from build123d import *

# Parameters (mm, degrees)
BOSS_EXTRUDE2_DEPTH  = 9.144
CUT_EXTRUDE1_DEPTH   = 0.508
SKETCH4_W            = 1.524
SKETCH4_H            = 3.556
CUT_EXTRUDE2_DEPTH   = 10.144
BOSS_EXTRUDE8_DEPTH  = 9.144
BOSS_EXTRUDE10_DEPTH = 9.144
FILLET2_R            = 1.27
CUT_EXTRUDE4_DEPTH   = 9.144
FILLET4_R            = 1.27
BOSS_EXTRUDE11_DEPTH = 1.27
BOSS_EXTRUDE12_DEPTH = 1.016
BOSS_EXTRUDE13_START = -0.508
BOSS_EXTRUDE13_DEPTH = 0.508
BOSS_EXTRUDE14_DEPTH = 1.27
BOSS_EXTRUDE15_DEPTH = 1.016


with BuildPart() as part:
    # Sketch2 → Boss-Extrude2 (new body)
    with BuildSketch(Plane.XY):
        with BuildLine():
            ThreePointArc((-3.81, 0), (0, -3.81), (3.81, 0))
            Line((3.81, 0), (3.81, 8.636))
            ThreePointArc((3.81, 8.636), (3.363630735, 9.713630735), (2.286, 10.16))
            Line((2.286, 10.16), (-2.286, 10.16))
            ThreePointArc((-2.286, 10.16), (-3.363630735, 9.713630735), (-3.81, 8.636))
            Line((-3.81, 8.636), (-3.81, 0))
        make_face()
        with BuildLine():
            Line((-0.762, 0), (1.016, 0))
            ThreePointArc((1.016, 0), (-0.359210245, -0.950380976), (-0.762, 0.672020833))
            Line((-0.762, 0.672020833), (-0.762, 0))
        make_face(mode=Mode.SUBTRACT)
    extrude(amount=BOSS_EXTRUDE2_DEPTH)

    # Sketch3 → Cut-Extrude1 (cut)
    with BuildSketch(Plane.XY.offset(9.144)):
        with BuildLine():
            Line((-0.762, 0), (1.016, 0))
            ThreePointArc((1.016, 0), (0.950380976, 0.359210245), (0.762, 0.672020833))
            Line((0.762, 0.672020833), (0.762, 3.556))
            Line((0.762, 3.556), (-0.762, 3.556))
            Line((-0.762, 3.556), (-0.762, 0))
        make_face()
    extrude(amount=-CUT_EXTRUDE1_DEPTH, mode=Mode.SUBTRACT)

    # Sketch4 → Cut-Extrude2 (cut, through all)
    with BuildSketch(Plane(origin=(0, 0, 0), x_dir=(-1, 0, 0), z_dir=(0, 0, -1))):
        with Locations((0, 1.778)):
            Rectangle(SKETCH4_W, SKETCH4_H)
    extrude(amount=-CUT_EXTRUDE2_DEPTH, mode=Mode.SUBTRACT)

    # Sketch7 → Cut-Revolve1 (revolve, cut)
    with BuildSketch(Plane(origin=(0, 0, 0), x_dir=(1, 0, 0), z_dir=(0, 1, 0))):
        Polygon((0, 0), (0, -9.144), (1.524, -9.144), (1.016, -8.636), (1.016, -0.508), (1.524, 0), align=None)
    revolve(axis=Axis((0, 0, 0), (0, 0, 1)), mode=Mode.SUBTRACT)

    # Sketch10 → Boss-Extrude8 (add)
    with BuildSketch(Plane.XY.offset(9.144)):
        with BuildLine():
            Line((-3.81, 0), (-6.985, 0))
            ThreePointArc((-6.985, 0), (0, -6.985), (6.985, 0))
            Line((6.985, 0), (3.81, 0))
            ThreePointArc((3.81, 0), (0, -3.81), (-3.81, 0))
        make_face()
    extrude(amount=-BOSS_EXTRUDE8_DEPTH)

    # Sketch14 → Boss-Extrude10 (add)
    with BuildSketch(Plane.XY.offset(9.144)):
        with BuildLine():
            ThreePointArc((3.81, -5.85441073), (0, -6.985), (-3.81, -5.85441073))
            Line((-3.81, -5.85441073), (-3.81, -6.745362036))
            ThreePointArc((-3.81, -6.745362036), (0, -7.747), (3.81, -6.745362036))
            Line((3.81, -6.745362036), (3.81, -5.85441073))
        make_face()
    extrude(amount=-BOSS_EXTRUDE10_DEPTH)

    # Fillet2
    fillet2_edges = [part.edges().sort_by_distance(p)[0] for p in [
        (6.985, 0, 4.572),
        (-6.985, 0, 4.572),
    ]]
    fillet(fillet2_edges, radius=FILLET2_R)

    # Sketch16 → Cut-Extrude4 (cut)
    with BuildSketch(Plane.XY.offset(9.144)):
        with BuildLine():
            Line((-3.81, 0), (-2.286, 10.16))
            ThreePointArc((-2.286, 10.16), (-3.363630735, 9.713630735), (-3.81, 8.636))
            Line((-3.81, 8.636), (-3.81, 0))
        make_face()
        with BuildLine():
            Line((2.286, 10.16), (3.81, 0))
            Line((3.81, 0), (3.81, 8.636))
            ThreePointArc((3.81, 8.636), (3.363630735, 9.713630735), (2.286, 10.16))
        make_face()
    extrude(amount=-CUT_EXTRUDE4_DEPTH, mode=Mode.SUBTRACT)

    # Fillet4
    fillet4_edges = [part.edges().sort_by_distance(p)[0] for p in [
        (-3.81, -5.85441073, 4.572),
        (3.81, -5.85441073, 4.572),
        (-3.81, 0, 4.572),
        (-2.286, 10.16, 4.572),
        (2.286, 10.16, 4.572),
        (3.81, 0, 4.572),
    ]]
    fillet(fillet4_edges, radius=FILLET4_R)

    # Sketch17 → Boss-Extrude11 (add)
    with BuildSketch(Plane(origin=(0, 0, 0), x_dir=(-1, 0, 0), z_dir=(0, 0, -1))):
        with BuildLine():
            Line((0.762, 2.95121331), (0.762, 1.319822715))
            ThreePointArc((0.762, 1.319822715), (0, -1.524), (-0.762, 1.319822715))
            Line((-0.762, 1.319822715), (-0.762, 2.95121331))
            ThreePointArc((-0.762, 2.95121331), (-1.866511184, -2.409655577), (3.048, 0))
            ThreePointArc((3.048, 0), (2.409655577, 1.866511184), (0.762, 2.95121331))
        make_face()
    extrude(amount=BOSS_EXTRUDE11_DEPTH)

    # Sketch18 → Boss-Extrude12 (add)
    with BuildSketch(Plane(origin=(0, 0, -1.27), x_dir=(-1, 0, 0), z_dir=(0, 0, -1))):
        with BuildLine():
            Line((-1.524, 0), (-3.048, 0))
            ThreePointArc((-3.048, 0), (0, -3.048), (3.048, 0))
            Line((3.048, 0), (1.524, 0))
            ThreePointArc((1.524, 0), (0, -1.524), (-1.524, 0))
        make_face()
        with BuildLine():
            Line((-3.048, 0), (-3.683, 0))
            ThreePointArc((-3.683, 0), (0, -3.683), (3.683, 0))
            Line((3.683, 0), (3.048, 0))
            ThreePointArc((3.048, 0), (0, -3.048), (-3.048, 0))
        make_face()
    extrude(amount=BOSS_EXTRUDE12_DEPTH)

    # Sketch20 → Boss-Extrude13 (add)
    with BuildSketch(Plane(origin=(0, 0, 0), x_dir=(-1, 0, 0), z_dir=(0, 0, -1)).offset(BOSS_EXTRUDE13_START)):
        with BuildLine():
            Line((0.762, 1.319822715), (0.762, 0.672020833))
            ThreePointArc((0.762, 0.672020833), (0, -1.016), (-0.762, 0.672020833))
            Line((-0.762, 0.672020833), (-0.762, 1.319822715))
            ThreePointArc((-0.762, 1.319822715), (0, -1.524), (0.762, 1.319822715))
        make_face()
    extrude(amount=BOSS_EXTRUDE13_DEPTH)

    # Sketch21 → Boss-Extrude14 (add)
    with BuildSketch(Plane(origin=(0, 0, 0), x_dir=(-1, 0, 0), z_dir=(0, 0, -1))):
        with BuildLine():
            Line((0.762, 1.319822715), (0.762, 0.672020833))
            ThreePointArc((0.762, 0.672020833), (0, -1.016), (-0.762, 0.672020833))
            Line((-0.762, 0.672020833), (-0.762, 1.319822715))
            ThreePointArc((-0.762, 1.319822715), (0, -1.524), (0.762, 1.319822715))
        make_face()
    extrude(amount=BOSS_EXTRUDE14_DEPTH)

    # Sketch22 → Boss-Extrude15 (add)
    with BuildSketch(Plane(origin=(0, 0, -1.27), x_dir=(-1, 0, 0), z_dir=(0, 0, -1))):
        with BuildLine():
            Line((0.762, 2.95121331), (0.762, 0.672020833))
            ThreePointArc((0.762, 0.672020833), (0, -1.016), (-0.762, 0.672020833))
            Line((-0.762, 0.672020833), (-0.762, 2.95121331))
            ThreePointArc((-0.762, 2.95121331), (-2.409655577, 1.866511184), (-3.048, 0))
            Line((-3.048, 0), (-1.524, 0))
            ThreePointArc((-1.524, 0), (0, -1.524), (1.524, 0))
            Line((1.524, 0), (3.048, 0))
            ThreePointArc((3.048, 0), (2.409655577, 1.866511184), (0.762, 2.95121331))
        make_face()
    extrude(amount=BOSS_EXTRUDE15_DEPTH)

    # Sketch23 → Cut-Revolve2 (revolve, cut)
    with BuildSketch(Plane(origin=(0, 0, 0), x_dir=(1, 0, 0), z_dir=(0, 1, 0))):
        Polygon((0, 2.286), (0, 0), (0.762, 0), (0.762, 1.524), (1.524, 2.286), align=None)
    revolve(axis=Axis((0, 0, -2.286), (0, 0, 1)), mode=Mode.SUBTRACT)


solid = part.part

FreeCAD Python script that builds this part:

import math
import FreeCAD as App
import Part
import Sketcher

V = App.Vector
Q = App.Units.Quantity


def edges_at(feature, points):
    """Names of the edges that pass closest to the given points."""
    edges = feature.Shape.Edges
    near = lambda p: min(range(len(edges)), key=lambda i: edges[i].distToShape(Part.Vertex(*p))[0])
    return sorted({f"Edge{near(p) + 1}" for p in points})

doc = App.newDocument("Part")
body = doc.addObject("PartDesign::Body", "Body")

# Sketch on XY plane
sketch1 = body.newObject("Sketcher::SketchObject", "Sketch")
sketch1.AttachmentSupport = (doc.getObject("XY_Plane"), [""])
sketch1.MapMode = "FlatFace"
sketch1.addGeometry(Part.ArcOfCircle(Part.Circle(V(0, 0, 0), V(0, 0, 1), 3.81), math.radians(180), math.radians(360)), False)
sketch1.addGeometry(Part.LineSegment(V(3.81, 0, 0), V(3.81, 8.636, 0)), False)
sketch1.addGeometry(Part.ArcOfCircle(Part.Circle(V(2.286, 8.636, 0), V(0, 0, 1), 1.524), math.radians(0), math.radians(90)), False)
sketch1.addGeometry(Part.LineSegment(V(2.286, 10.16, 0), V(-2.286, 10.16, 0)), False)
sketch1.addGeometry(Part.ArcOfCircle(Part.Circle(V(-2.286, 8.636, 0), V(0, 0, 1), 1.524), math.radians(90), math.radians(180)), False)
sketch1.addGeometry(Part.LineSegment(V(-3.81, 8.636, 0), V(-3.81, 0, 0)), False)
sketch1.addGeometry(Part.LineSegment(V(-0.762, 0.672021, 0), V(-0.762, 0, 0)), False)
sketch1.addGeometry(Part.LineSegment(V(-0.762, 0, 0), V(1.016, 0, 0)), False)
sketch1.addGeometry(Part.ArcOfCircle(Part.Circle(V(0, 0, 0), V(0, 0, 1), 1.016), math.radians(138.590378), math.radians(360)), False)
sketch1.addConstraint(Sketcher.Constraint("Tangent", 0, 2, 1, 1))
sketch1.addConstraint(Sketcher.Constraint("Tangent", 1, 2, 2, 1))
sketch1.addConstraint(Sketcher.Constraint("Tangent", 2, 2, 3, 1))
sketch1.addConstraint(Sketcher.Constraint("Tangent", 3, 2, 4, 1))
sketch1.addConstraint(Sketcher.Constraint("Tangent", 4, 2, 5, 1))
sketch1.addConstraint(Sketcher.Constraint("Tangent", 5, 2, 0, 1))
sketch1.addConstraint(Sketcher.Constraint("Coincident", 6, 2, 7, 1))
sketch1.addConstraint(Sketcher.Constraint("Coincident", 7, 2, 8, 2))
sketch1.addConstraint(Sketcher.Constraint("Coincident", 8, 1, 6, 1))
sketch1.addConstraint(Sketcher.Constraint("Vertical", 1))
sketch1.addConstraint(Sketcher.Constraint("Horizontal", 3))
sketch1.addConstraint(Sketcher.Constraint("Vertical", 5))
sketch1.addConstraint(Sketcher.Constraint("Vertical", 6))
sketch1.addConstraint(Sketcher.Constraint("Horizontal", 7))
sketch1.addConstraint(Sketcher.Constraint("Coincident", 0, 3, -1, 1))
sketch1.addConstraint(Sketcher.Constraint("Coincident", 8, 3, -1, 1))
sketch1.addConstraint(Sketcher.Constraint("Equal", 2, 4))
sketch1.addConstraint(Sketcher.Constraint("PointOnObject", 6, 2, -1))
sketch1.addConstraint(Sketcher.Constraint("Radius", 0, Q("0.15 in")))
sketch1.addConstraint(Sketcher.Constraint("Radius", 2, Q("0.06 in")))
sketch1.addConstraint(Sketcher.Constraint("Radius", 8, Q("0.04 in")))
sketch1.addConstraint(Sketcher.Constraint("DistanceX", 7, 1, 7, 2, Q("0.07 in")))
sketch1.addConstraint(Sketcher.Constraint("DistanceY", 1, 1, 1, 2, Q("0.34 in")))
pad1 = body.newObject("PartDesign::Pad", "Pad")
pad1.Profile = sketch1
pad1.Length = Q("0.36 in")

# Sketch on XY plane
sketch2 = body.newObject("Sketcher::SketchObject", "Sketch001")
sketch2.AttachmentSupport = (doc.getObject("XY_Plane"), [""])
sketch2.MapMode = "FlatFace"
sketch2.AttachmentOffset = App.Placement(V(0, 0, 0.36 * 25.4), App.Rotation())
sketch2.addGeometry(Part.LineSegment(V(-0.762, 0, 0), V(1.016, 0, 0)), False)
sketch2.addGeometry(Part.ArcOfCircle(Part.Circle(V(0, 0, 0), V(0, 0, 1), 1.016), math.radians(0), math.radians(41.409622)), False)
sketch2.addGeometry(Part.LineSegment(V(0.762, 0.672021, 0), V(0.762, 3.556, 0)), False)
sketch2.addGeometry(Part.LineSegment(V(0.762, 3.556, 0), V(-0.762, 3.556, 0)), False)
sketch2.addGeometry(Part.LineSegment(V(-0.762, 3.556, 0), V(-0.762, 0, 0)), False)
sketch2.addConstraint(Sketcher.Constraint("Coincident", 0, 2, 1, 1))
sketch2.addConstraint(Sketcher.Constraint("Coincident", 1, 2, 2, 1))
sketch2.addConstraint(Sketcher.Constraint("Coincident", 2, 2, 3, 1))
sketch2.addConstraint(Sketcher.Constraint("Coincident", 3, 2, 4, 1))
sketch2.addConstraint(Sketcher.Constraint("Coincident", 4, 2, 0, 1))
sketch2.addConstraint(Sketcher.Constraint("Horizontal", 0))
sketch2.addConstraint(Sketcher.Constraint("Vertical", 2))
sketch2.addConstraint(Sketcher.Constraint("Horizontal", 3))
sketch2.addConstraint(Sketcher.Constraint("Vertical", 4))
sketch2.addConstraint(Sketcher.Constraint("Coincident", 1, 3, -1, 1))
sketch2.addConstraint(Sketcher.Constraint("PointOnObject", 0, 2, -1))
sketch2.addConstraint(Sketcher.Constraint("Radius", 1, Q("0.04 in")))
sketch2.addConstraint(Sketcher.Constraint("DistanceX", 0, 1, 0, 2, Q("0.07 in")))
sketch2.addConstraint(Sketcher.Constraint("DistanceX", 3, 2, 3, 1, Q("0.06 in")))
sketch2.addConstraint(Sketcher.Constraint("DistanceY", 4, 2, 4, 1, Q("0.14 in")))
pocket1 = body.newObject("PartDesign::Pocket", "Pocket")
pocket1.Profile = sketch2
pocket1.Length = Q("0.02 in")

# Sketch on XY plane
sketch3 = body.newObject("Sketcher::SketchObject", "Sketch002")
sketch3.AttachmentSupport = (doc.getObject("XY_Plane"), [""])
sketch3.MapMode = "FlatFace"
sketch3.addGeometry(Part.LineSegment(V(0.762, 3.556, 0), V(0.762, 0, 0)), False)
sketch3.addGeometry(Part.LineSegment(V(0.762, 0, 0), V(-0.762, 0, 0)), False)
sketch3.addGeometry(Part.LineSegment(V(-0.762, 0, 0), V(-0.762, 3.556, 0)), False)
sketch3.addGeometry(Part.LineSegment(V(-0.762, 3.556, 0), V(0.762, 3.556, 0)), False)
sketch3.addConstraint(Sketcher.Constraint("Coincident", 0, 2, 1, 1))
sketch3.addConstraint(Sketcher.Constraint("Coincident", 1, 2, 2, 1))
sketch3.addConstraint(Sketcher.Constraint("Coincident", 2, 2, 3, 1))
sketch3.addConstraint(Sketcher.Constraint("Coincident", 3, 2, 0, 1))
sketch3.addConstraint(Sketcher.Constraint("Vertical", 0))
sketch3.addConstraint(Sketcher.Constraint("Horizontal", 1))
sketch3.addConstraint(Sketcher.Constraint("Vertical", 2))
sketch3.addConstraint(Sketcher.Constraint("Horizontal", 3))
sketch3.addConstraint(Sketcher.Constraint("Symmetric", 0, 2, 1, 2, -1, 1))
sketch3.addConstraint(Sketcher.Constraint("DistanceX", 1, 2, 1, 1, Q("0.06 in")))
sketch3.addConstraint(Sketcher.Constraint("DistanceY", 0, 2, 0, 1, Q("0.14 in")))
pocket2 = body.newObject("PartDesign::Pocket", "Pocket001")
pocket2.Profile = sketch3
pocket2.Type = "ThroughAll"
pocket2.Reversed = True

# Sketch on XZ plane
sketch4 = body.newObject("Sketcher::SketchObject", "Sketch003")
sketch4.AttachmentSupport = (doc.getObject("XZ_Plane"), [""])
sketch4.MapMode = "FlatFace"
sketch4.addGeometry(Part.LineSegment(V(0, 0, 0), V(0, 9.144, 0)), False)
sketch4.addGeometry(Part.LineSegment(V(0, 9.144, 0), V(1.524, 9.144, 0)), False)
sketch4.addGeometry(Part.LineSegment(V(1.524, 9.144, 0), V(1.016, 8.636, 0)), False)
sketch4.addGeometry(Part.LineSegment(V(1.016, 8.636, 0), V(1.016, 0.508, 0)), False)
sketch4.addGeometry(Part.LineSegment(V(1.016, 0.508, 0), V(1.524, 0, 0)), False)
sketch4.addGeometry(Part.LineSegment(V(1.524, 0, 0), V(0, 0, 0)), False)
sketch4.addConstraint(Sketcher.Constraint("Coincident", 0, 2, 1, 1))
sketch4.addConstraint(Sketcher.Constraint("Coincident", 1, 2, 2, 1))
sketch4.addConstraint(Sketcher.Constraint("Coincident", 2, 2, 3, 1))
sketch4.addConstraint(Sketcher.Constraint("Coincident", 3, 2, 4, 1))
sketch4.addConstraint(Sketcher.Constraint("Coincident", 4, 2, 5, 1))
sketch4.addConstraint(Sketcher.Constraint("Coincident", 5, 2, 0, 1))
sketch4.addConstraint(Sketcher.Constraint("Vertical", 0))
sketch4.addConstraint(Sketcher.Constraint("Horizontal", 1))
sketch4.addConstraint(Sketcher.Constraint("Vertical", 3))
sketch4.addConstraint(Sketcher.Constraint("Horizontal", 5))
sketch4.addConstraint(Sketcher.Constraint("Coincident", 5, 2, -1, 1))
sketch4.addConstraint(Sketcher.Constraint("Perpendicular", 2, 4))
sketch4.addConstraint(Sketcher.Constraint("Vertical", 1, 2, 4, 2))
sketch4.addConstraint(Sketcher.Constraint("Equal", 2, 4))
sketch4.addConstraint(Sketcher.Constraint("DistanceX", 1, 1, 1, 2, Q("0.06 in")))
sketch4.addConstraint(Sketcher.Constraint("DistanceY", 0, 1, 0, 2, Q("0.36 in")))
sketch4.addConstraint(Sketcher.Constraint("DistanceY", 3, 2, 3, 1, Q("0.32 in")))
groove = body.newObject("PartDesign::Groove", "Groove")
groove.Profile = sketch4
groove.ReferenceAxis = (sketch4, ["V_Axis"])
groove.Angle = 360

# Sketch on XY plane
sketch5 = body.newObject("Sketcher::SketchObject", "Sketch004")
sketch5.AttachmentSupport = (doc.getObject("XY_Plane"), [""])
sketch5.MapMode = "FlatFace"
sketch5.AttachmentOffset = App.Placement(V(0, 0, 0.36 * 25.4), App.Rotation())
sketch5.addGeometry(Part.LineSegment(V(-3.81, 0, 0), V(-6.985, 0, 0)), False)
sketch5.addGeometry(Part.ArcOfCircle(Part.Circle(V(0, 0, 0), V(0, 0, 1), 6.985), math.radians(180), math.radians(360)), False)
sketch5.addGeometry(Part.LineSegment(V(6.985, 0, 0), V(3.81, 0, 0)), False)
sketch5.addGeometry(Part.ArcOfCircle(Part.Circle(V(0, 0, 0), V(0, 0, 1), 3.81), math.radians(180), math.radians(360)), False)
sketch5.addConstraint(Sketcher.Constraint("Coincident", 0, 2, 1, 1))
sketch5.addConstraint(Sketcher.Constraint("Coincident", 1, 2, 2, 1))
sketch5.addConstraint(Sketcher.Constraint("Coincident", 2, 2, 3, 2))
sketch5.addConstraint(Sketcher.Constraint("Coincident", 3, 1, 0, 1))
sketch5.addConstraint(Sketcher.Constraint("Horizontal", 0))
sketch5.addConstraint(Sketcher.Constraint("Horizontal", 2))
sketch5.addConstraint(Sketcher.Constraint("Coincident", 1, 3, -1, 1))
sketch5.addConstraint(Sketcher.Constraint("Coincident", 3, 3, -1, 1))
sketch5.addConstraint(Sketcher.Constraint("PointOnObject", 0, 2, -1))
sketch5.addConstraint(Sketcher.Constraint("PointOnObject", 1, 2, -1))
sketch5.addConstraint(Sketcher.Constraint("Radius", 3, Q("0.15 in")))
sketch5.addConstraint(Sketcher.Constraint("Radius", 1, Q("0.275 in")))
pad2 = body.newObject("PartDesign::Pad", "Pad001")
pad2.Profile = sketch5
pad2.Length = Q("0.36 in")
pad2.Reversed = True

# Sketch on XY plane
sketch6 = body.newObject("Sketcher::SketchObject", "Sketch005")
sketch6.AttachmentSupport = (doc.getObject("XY_Plane"), [""])
sketch6.MapMode = "FlatFace"
sketch6.AttachmentOffset = App.Placement(V(0, 0, 0.36 * 25.4), App.Rotation())
sketch6.addGeometry(Part.ArcOfCircle(Part.Circle(V(0, 0, 0), V(0, 0, 1), 6.985), math.radians(-123.055731), math.radians(-56.944269)), False)
sketch6.addGeometry(Part.LineSegment(V(-3.81, -5.854411, 0), V(-3.81, -6.745362, 0)), False)
sketch6.addGeometry(Part.ArcOfCircle(Part.Circle(V(0, 0, 0), V(0, 0, 1), 7.747), math.radians(-119.459175), math.radians(-60.540825)), False)
sketch6.addGeometry(Part.LineSegment(V(3.81, -6.745362, 0), V(3.81, -5.854411, 0)), False)
sketch6.addConstraint(Sketcher.Constraint("Coincident", 0, 1, 1, 1))
sketch6.addConstraint(Sketcher.Constraint("Coincident", 1, 2, 2, 1))
sketch6.addConstraint(Sketcher.Constraint("Coincident", 2, 2, 3, 1))
sketch6.addConstraint(Sketcher.Constraint("Coincident", 3, 2, 0, 2))
sketch6.addConstraint(Sketcher.Constraint("Vertical", 1))
sketch6.addConstraint(Sketcher.Constraint("Vertical", 3))
sketch6.addConstraint(Sketcher.Constraint("Coincident", 0, 3, -1, 1))
sketch6.addConstraint(Sketcher.Constraint("Coincident", 2, 3, -1, 1))
sketch6.addConstraint(Sketcher.Constraint("Horizontal", 1, 2, 2, 2))
sketch6.addConstraint(Sketcher.Constraint("Radius", 0, Q("0.275 in")))
sketch6.addConstraint(Sketcher.Constraint("Radius", 2, Q("0.305 in")))
sketch6.addConstraint(Sketcher.Constraint("DistanceX", 1, 2, 2, 2, Q("0.3 in")))
pad3 = body.newObject("PartDesign::Pad", "Pad002")
pad3.Profile = sketch6
pad3.Length = Q("0.36 in")
pad3.Reversed = True
doc.recompute()

fillet = body.newObject("PartDesign::Fillet", "Fillet")
fillet.Base = (pad3, edges_at(pad3, [(6.985, 0, 4.572), (-6.985, 0, 4.572)]))
fillet.Radius = Q("0.05 in")

# Sketch on XY plane
sketch7 = body.newObject("Sketcher::SketchObject", "Sketch006")
sketch7.AttachmentSupport = (doc.getObject("XY_Plane"), [""])
sketch7.MapMode = "FlatFace"
sketch7.AttachmentOffset = App.Placement(V(0, 0, 0.36 * 25.4), App.Rotation())
sketch7.addGeometry(Part.LineSegment(V(-3.81, 0, 0), V(-2.286, 10.16, 0)), False)
sketch7.addGeometry(Part.ArcOfCircle(Part.Circle(V(-2.286, 8.636, 0), V(0, 0, 1), 1.524), math.radians(90), math.radians(180)), False)
sketch7.addGeometry(Part.LineSegment(V(-3.81, 8.636, 0), V(-3.81, 0, 0)), False)
sketch7.addGeometry(Part.LineSegment(V(2.286, 10.16, 0), V(3.81, 0, 0)), False)
sketch7.addGeometry(Part.LineSegment(V(3.81, 0, 0), V(3.81, 8.636, 0)), False)
sketch7.addGeometry(Part.ArcOfCircle(Part.Circle(V(2.286, 8.636, 0), V(0, 0, 1), 1.524), math.radians(0), math.radians(90)), False)
sketch7.addConstraint(Sketcher.Constraint("Coincident", 0, 2, 1, 1))
sketch7.addConstraint(Sketcher.Constraint("Tangent", 1, 2, 2, 1))
sketch7.addConstraint(Sketcher.Constraint("Coincident", 2, 2, 0, 1))
sketch7.addConstraint(Sketcher.Constraint("Coincident", 3, 2, 4, 1))
sketch7.addConstraint(Sketcher.Constraint("Tangent", 4, 2, 5, 1))
sketch7.addConstraint(Sketcher.Constraint("Coincident", 5, 2, 3, 1))
sketch7.addConstraint(Sketcher.Constraint("Vertical", 2))
sketch7.addConstraint(Sketcher.Constraint("Vertical", 4))
sketch7.addConstraint(Sketcher.Constraint("Equal", 1, 5))
sketch7.addConstraint(Sketcher.Constraint("Symmetric", 2, 2, 3, 2, -1, 1))
sketch7.addConstraint(Sketcher.Constraint("Symmetric", 0, 2, 5, 2, -2))
sketch7.addConstraint(Sketcher.Constraint("PointOnObject", 2, 2, -1))
sketch7.addConstraint(Sketcher.Constraint("Vertical", 1, 3, 0, 2))
sketch7.addConstraint(Sketcher.Constraint("Radius", 1, Q("0.06 in")))
sketch7.addConstraint(Sketcher.Constraint("DistanceY", 2, 2, 2, 1, Q("0.34 in")))
sketch7.addConstraint(Sketcher.Constraint("DistanceX", 2, 2, 3, 2, Q("0.3 in")))
pocket3 = body.newObject("PartDesign::Pocket", "Pocket002")
pocket3.Profile = sketch7
pocket3.Length = Q("0.36 in")
doc.recompute()

fillet2 = body.newObject("PartDesign::Fillet", "Fillet001")
fillet2.Base = (pocket3, edges_at(pocket3, [
    (-3.81, -5.854, 4.572),
    (3.81, -5.854, 4.572),
    (-3.81, 0, 4.572),
    (-2.286, 10.16, 4.572),
    (2.286, 10.16, 4.572),
    (3.81, 0, 4.572),
]))
fillet2.Radius = Q("0.05 in")

# Sketch on XY plane
sketch8 = body.newObject("Sketcher::SketchObject", "Sketch007")
sketch8.AttachmentSupport = (doc.getObject("XY_Plane"), [""])
sketch8.MapMode = "FlatFace"
sketch8.addGeometry(Part.LineSegment(V(-0.762, 2.951213, 0), V(-0.762, 1.319823, 0)), False)
sketch8.addGeometry(Part.ArcOfCircle(Part.Circle(V(0, 0, 0), V(0, 0, 1), 1.524), math.radians(120), math.radians(420)), False)
sketch8.addGeometry(Part.LineSegment(V(0.762, 1.319823, 0), V(0.762, 2.951213, 0)), False)
sketch8.addGeometry(Part.ArcOfCircle(Part.Circle(V(0, 0, 0), V(0, 0, 1), 3.048), math.radians(180), math.radians(435.522488)), False)
sketch8.addGeometry(Part.ArcOfCircle(Part.Circle(V(0, 0, 0), V(0, 0, 1), 3.048), math.radians(104.477512), math.radians(180)), False)
sketch8.addConstraint(Sketcher.Constraint("Coincident", 0, 2, 1, 1))
sketch8.addConstraint(Sketcher.Constraint("Coincident", 1, 2, 2, 1))
sketch8.addConstraint(Sketcher.Constraint("Coincident", 2, 2, 3, 2))
sketch8.addConstraint(Sketcher.Constraint("Tangent", 3, 1, 4, 2))
sketch8.addConstraint(Sketcher.Constraint("Coincident", 4, 1, 0, 1))
sketch8.addConstraint(Sketcher.Constraint("Vertical", 0))
sketch8.addConstraint(Sketcher.Constraint("Vertical", 2))
sketch8.addConstraint(Sketcher.Constraint("Coincident", 1, 3, -1, 1))
sketch8.addConstraint(Sketcher.Constraint("Coincident", 3, 3, -1, 1))
sketch8.addConstraint(Sketcher.Constraint("Equal", 3, 4))
sketch8.addConstraint(Sketcher.Constraint("PointOnObject", 3, 1, -1))
sketch8.addConstraint(Sketcher.Constraint("Horizontal", 0, 2, 1, 2))
sketch8.addConstraint(Sketcher.Constraint("Radius", 1, Q("0.06 in")))
sketch8.addConstraint(Sketcher.Constraint("Radius", 3, Q("0.12 in")))
sketch8.addConstraint(Sketcher.Constraint("DistanceX", 0, 2, -1, 1, Q("0.03 in")))
pad4 = body.newObject("PartDesign::Pad", "Pad003")
pad4.Profile = sketch8
pad4.Length = Q("0.05 in")
pad4.Reversed = True

# Sketch on XY plane
sketch9 = body.newObject("Sketcher::SketchObject", "Sketch008")
sketch9.AttachmentSupport = (doc.getObject("XY_Plane"), [""])
sketch9.MapMode = "FlatFace"
sketch9.AttachmentOffset = App.Placement(V(0, 0, -0.05 * 25.4), App.Rotation())
sketch9.addGeometry(Part.LineSegment(V(1.524, 0, 0), V(3.683, 0, 0)), False)
sketch9.addGeometry(Part.ArcOfCircle(Part.Circle(V(0, 0, 0), V(0, 0, 1), 3.683), math.radians(180), math.radians(360)), False)
sketch9.addGeometry(Part.LineSegment(V(-3.683, 0, 0), V(-1.524, 0, 0)), False)
sketch9.addGeometry(Part.ArcOfCircle(Part.Circle(V(0, 0, 0), V(0, 0, 1), 1.524), math.radians(180), math.radians(360)), False)
sketch9.addConstraint(Sketcher.Constraint("Coincident", 0, 2, 1, 2))
sketch9.addConstraint(Sketcher.Constraint("Coincident", 1, 1, 2, 1))
sketch9.addConstraint(Sketcher.Constraint("Coincident", 2, 2, 3, 1))
sketch9.addConstraint(Sketcher.Constraint("Coincident", 3, 2, 0, 1))
sketch9.addConstraint(Sketcher.Constraint("Horizontal", 0))
sketch9.addConstraint(Sketcher.Constraint("Horizontal", 2))
sketch9.addConstraint(Sketcher.Constraint("Coincident", 1, 3, -1, 1))
sketch9.addConstraint(Sketcher.Constraint("Coincident", 3, 3, -1, 1))
sketch9.addConstraint(Sketcher.Constraint("PointOnObject", 0, 2, -1))
sketch9.addConstraint(Sketcher.Constraint("PointOnObject", 1, 1, -1))
sketch9.addConstraint(Sketcher.Constraint("Radius", 3, Q("0.06 in")))
sketch9.addConstraint(Sketcher.Constraint("Radius", 1, Q("0.145 in")))
pad5 = body.newObject("PartDesign::Pad", "Pad004")
pad5.Profile = sketch9
pad5.Length = Q("0.04 in")
pad5.Reversed = True

# Sketch on XY plane
sketch10 = body.newObject("Sketcher::SketchObject", "Sketch009")
sketch10.AttachmentSupport = (doc.getObject("XY_Plane"), [""])
sketch10.MapMode = "FlatFace"
sketch10.AttachmentOffset = App.Placement(V(0, 0, 0.02 * 25.4), App.Rotation())
sketch10.addGeometry(Part.LineSegment(V(-0.762, 1.319823, 0), V(-0.762, 0.672021, 0)), False)
sketch10.addGeometry(Part.ArcOfCircle(Part.Circle(V(0, 0, 0), V(0, 0, 1), 1.016), math.radians(138.590378), math.radians(401.409622)), False)
sketch10.addGeometry(Part.LineSegment(V(0.762, 0.672021, 0), V(0.762, 1.319823, 0)), False)
sketch10.addGeometry(Part.ArcOfCircle(Part.Circle(V(0, 0, 0), V(0, 0, 1), 1.524), math.radians(120), math.radians(420)), False)
sketch10.addConstraint(Sketcher.Constraint("Coincident", 0, 2, 1, 1))
sketch10.addConstraint(Sketcher.Constraint("Coincident", 1, 2, 2, 1))
sketch10.addConstraint(Sketcher.Constraint("Coincident", 2, 2, 3, 2))
sketch10.addConstraint(Sketcher.Constraint("Coincident", 3, 1, 0, 1))
sketch10.addConstraint(Sketcher.Constraint("Vertical", 0))
sketch10.addConstraint(Sketcher.Constraint("Vertical", 2))
sketch10.addConstraint(Sketcher.Constraint("Coincident", 1, 3, -1, 1))
sketch10.addConstraint(Sketcher.Constraint("Coincident", 3, 3, -1, 1))
sketch10.addConstraint(Sketcher.Constraint("Horizontal", 0, 2, 1, 2))
sketch10.addConstraint(Sketcher.Constraint("Radius", 1, Q("0.04 in")))
sketch10.addConstraint(Sketcher.Constraint("Radius", 3, Q("0.06 in")))
sketch10.addConstraint(Sketcher.Constraint("DistanceX", 0, 2, -1, 1, Q("0.03 in")))
pad6 = body.newObject("PartDesign::Pad", "Pad005")
pad6.Profile = sketch10
pad6.Length = Q("0.02 in")
pad6.Reversed = True

# Sketch on XY plane
sketch11 = body.newObject("Sketcher::SketchObject", "Sketch010")
sketch11.AttachmentSupport = (doc.getObject("XY_Plane"), [""])
sketch11.MapMode = "FlatFace"
sketch11.addGeometry(Part.LineSegment(V(-0.762, 1.319823, 0), V(-0.762, 0.672021, 0)), False)
sketch11.addGeometry(Part.ArcOfCircle(Part.Circle(V(0, 0, 0), V(0, 0, 1), 1.016), math.radians(138.590378), math.radians(401.409622)), False)
sketch11.addGeometry(Part.LineSegment(V(0.762, 0.672021, 0), V(0.762, 1.319823, 0)), False)
sketch11.addGeometry(Part.ArcOfCircle(Part.Circle(V(0, 0, 0), V(0, 0, 1), 1.524), math.radians(120), math.radians(420)), False)
sketch11.addConstraint(Sketcher.Constraint("Coincident", 0, 2, 1, 1))
sketch11.addConstraint(Sketcher.Constraint("Coincident", 1, 2, 2, 1))
sketch11.addConstraint(Sketcher.Constraint("Coincident", 2, 2, 3, 2))
sketch11.addConstraint(Sketcher.Constraint("Coincident", 3, 1, 0, 1))
sketch11.addConstraint(Sketcher.Constraint("Vertical", 0))
sketch11.addConstraint(Sketcher.Constraint("Vertical", 2))
sketch11.addConstraint(Sketcher.Constraint("Coincident", 1, 3, -1, 1))
sketch11.addConstraint(Sketcher.Constraint("Coincident", 3, 3, -1, 1))
sketch11.addConstraint(Sketcher.Constraint("Horizontal", 0, 2, 1, 2))
sketch11.addConstraint(Sketcher.Constraint("Radius", 1, Q("0.04 in")))
sketch11.addConstraint(Sketcher.Constraint("Radius", 3, Q("0.06 in")))
sketch11.addConstraint(Sketcher.Constraint("DistanceX", 0, 2, -1, 1, Q("0.03 in")))
pad7 = body.newObject("PartDesign::Pad", "Pad006")
pad7.Profile = sketch11
pad7.Length = Q("0.05 in")
pad7.Reversed = True

# Sketch on XY plane
sketch12 = body.newObject("Sketcher::SketchObject", "Sketch011")
sketch12.AttachmentSupport = (doc.getObject("XY_Plane"), [""])
sketch12.MapMode = "FlatFace"
sketch12.AttachmentOffset = App.Placement(V(0, 0, -0.05 * 25.4), App.Rotation())
sketch12.addGeometry(Part.LineSegment(V(-0.762, 2.951213, 0), V(-0.762, 0.672021, 0)), False)
sketch12.addGeometry(Part.ArcOfCircle(Part.Circle(V(0, 0, 0), V(0, 0, 1), 1.016), math.radians(138.590378), math.radians(401.409622)), False)
sketch12.addGeometry(Part.LineSegment(V(0.762, 0.672021, 0), V(0.762, 2.951213, 0)), False)
sketch12.addGeometry(Part.ArcOfCircle(Part.Circle(V(0, 0, 0), V(0, 0, 1), 3.048), math.radians(0), math.radians(75.522488)), False)
sketch12.addGeometry(Part.LineSegment(V(3.048, 0, 0), V(1.524, 0, 0)), False)
sketch12.addGeometry(Part.ArcOfCircle(Part.Circle(V(0, 0, 0), V(0, 0, 1), 1.524), math.radians(180), math.radians(360)), False)
sketch12.addGeometry(Part.LineSegment(V(-1.524, 0, 0), V(-3.048, 0, 0)), False)
sketch12.addGeometry(Part.ArcOfCircle(Part.Circle(V(0, 0, 0), V(0, 0, 1), 3.048), math.radians(104.477512), math.radians(180)), False)
sketch12.addConstraint(Sketcher.Constraint("Coincident", 0, 2, 1, 1))
sketch12.addConstraint(Sketcher.Constraint("Coincident", 1, 2, 2, 1))
sketch12.addConstraint(Sketcher.Constraint("Coincident", 2, 2, 3, 2))
sketch12.addConstraint(Sketcher.Constraint("Coincident", 3, 1, 4, 1))
sketch12.addConstraint(Sketcher.Constraint("Coincident", 4, 2, 5, 2))
sketch12.addConstraint(Sketcher.Constraint("Coincident", 5, 1, 6, 1))
sketch12.addConstraint(Sketcher.Constraint("Coincident", 6, 2, 7, 2))
sketch12.addConstraint(Sketcher.Constraint("Coincident", 7, 1, 0, 1))
sketch12.addConstraint(Sketcher.Constraint("Vertical", 0))
sketch12.addConstraint(Sketcher.Constraint("Vertical", 2))
sketch12.addConstraint(Sketcher.Constraint("Horizontal", 4))
sketch12.addConstraint(Sketcher.Constraint("Horizontal", 6))
sketch12.addConstraint(Sketcher.Constraint("Coincident", 1, 3, -1, 1))
sketch12.addConstraint(Sketcher.Constraint("Coincident", 3, 3, -1, 1))
sketch12.addConstraint(Sketcher.Constraint("Coincident", 5, 3, -1, 1))
sketch12.addConstraint(Sketcher.Constraint("Coincident", 7, 3, -1, 1))
sketch12.addConstraint(Sketcher.Constraint("Equal", 3, 7))
sketch12.addConstraint(Sketcher.Constraint("PointOnObject", 3, 1, -1))
sketch12.addConstraint(Sketcher.Constraint("PointOnObject", 5, 1, -1))
sketch12.addConstraint(Sketcher.Constraint("Horizontal", 0, 2, 1, 2))
sketch12.addConstraint(Sketcher.Constraint("Radius", 1, Q("0.04 in")))
sketch12.addConstraint(Sketcher.Constraint("Radius", 3, Q("0.12 in")))
sketch12.addConstraint(Sketcher.Constraint("Radius", 5, Q("0.06 in")))
sketch12.addConstraint(Sketcher.Constraint("DistanceX", 0, 2, -1, 1, Q("0.03 in")))
pad8 = body.newObject("PartDesign::Pad", "Pad007")
pad8.Profile = sketch12
pad8.Length = Q("0.04 in")
pad8.Reversed = True

# Sketch on XZ plane
sketch13 = body.newObject("Sketcher::SketchObject", "Sketch012")
sketch13.AttachmentSupport = (doc.getObject("XZ_Plane"), [""])
sketch13.MapMode = "FlatFace"
sketch13.addGeometry(Part.LineSegment(V(0, -2.286, 0), V(0, 0, 0)), False)
sketch13.addGeometry(Part.LineSegment(V(0, 0, 0), V(0.762, 0, 0)), False)
sketch13.addGeometry(Part.LineSegment(V(0.762, 0, 0), V(0.762, -1.524, 0)), False)
sketch13.addGeometry(Part.LineSegment(V(0.762, -1.524, 0), V(1.524, -2.286, 0)), False)
sketch13.addGeometry(Part.LineSegment(V(1.524, -2.286, 0), V(0, -2.286, 0)), False)
sketch13.addConstraint(Sketcher.Constraint("Coincident", 0, 2, 1, 1))
sketch13.addConstraint(Sketcher.Constraint("Coincident", 1, 2, 2, 1))
sketch13.addConstraint(Sketcher.Constraint("Coincident", 2, 2, 3, 1))
sketch13.addConstraint(Sketcher.Constraint("Coincident", 3, 2, 4, 1))
sketch13.addConstraint(Sketcher.Constraint("Coincident", 4, 2, 0, 1))
sketch13.addConstraint(Sketcher.Constraint("Vertical", 0))
sketch13.addConstraint(Sketcher.Constraint("Horizontal", 1))
sketch13.addConstraint(Sketcher.Constraint("Vertical", 2))
sketch13.addConstraint(Sketcher.Constraint("Horizontal", 4))
sketch13.addConstraint(Sketcher.Constraint("Coincident", 0, 2, -1, 1))
sketch13.addConstraint(Sketcher.Constraint("Equal", 4, 2))
sketch13.addConstraint(Sketcher.Constraint("Angle", 3, Q("-45 deg")))
sketch13.addConstraint(Sketcher.Constraint("DistanceX", 1, 1, 1, 2, Q("0.03 in")))
sketch13.addConstraint(Sketcher.Constraint("DistanceX", 4, 2, 4, 1, Q("0.06 in")))
groove2 = body.newObject("PartDesign::Groove", "Groove001")
groove2.Profile = sketch13
groove2.ReferenceAxis = (sketch13, ["V_Axis"])
groove2.Angle = 360

doc.recompute()
